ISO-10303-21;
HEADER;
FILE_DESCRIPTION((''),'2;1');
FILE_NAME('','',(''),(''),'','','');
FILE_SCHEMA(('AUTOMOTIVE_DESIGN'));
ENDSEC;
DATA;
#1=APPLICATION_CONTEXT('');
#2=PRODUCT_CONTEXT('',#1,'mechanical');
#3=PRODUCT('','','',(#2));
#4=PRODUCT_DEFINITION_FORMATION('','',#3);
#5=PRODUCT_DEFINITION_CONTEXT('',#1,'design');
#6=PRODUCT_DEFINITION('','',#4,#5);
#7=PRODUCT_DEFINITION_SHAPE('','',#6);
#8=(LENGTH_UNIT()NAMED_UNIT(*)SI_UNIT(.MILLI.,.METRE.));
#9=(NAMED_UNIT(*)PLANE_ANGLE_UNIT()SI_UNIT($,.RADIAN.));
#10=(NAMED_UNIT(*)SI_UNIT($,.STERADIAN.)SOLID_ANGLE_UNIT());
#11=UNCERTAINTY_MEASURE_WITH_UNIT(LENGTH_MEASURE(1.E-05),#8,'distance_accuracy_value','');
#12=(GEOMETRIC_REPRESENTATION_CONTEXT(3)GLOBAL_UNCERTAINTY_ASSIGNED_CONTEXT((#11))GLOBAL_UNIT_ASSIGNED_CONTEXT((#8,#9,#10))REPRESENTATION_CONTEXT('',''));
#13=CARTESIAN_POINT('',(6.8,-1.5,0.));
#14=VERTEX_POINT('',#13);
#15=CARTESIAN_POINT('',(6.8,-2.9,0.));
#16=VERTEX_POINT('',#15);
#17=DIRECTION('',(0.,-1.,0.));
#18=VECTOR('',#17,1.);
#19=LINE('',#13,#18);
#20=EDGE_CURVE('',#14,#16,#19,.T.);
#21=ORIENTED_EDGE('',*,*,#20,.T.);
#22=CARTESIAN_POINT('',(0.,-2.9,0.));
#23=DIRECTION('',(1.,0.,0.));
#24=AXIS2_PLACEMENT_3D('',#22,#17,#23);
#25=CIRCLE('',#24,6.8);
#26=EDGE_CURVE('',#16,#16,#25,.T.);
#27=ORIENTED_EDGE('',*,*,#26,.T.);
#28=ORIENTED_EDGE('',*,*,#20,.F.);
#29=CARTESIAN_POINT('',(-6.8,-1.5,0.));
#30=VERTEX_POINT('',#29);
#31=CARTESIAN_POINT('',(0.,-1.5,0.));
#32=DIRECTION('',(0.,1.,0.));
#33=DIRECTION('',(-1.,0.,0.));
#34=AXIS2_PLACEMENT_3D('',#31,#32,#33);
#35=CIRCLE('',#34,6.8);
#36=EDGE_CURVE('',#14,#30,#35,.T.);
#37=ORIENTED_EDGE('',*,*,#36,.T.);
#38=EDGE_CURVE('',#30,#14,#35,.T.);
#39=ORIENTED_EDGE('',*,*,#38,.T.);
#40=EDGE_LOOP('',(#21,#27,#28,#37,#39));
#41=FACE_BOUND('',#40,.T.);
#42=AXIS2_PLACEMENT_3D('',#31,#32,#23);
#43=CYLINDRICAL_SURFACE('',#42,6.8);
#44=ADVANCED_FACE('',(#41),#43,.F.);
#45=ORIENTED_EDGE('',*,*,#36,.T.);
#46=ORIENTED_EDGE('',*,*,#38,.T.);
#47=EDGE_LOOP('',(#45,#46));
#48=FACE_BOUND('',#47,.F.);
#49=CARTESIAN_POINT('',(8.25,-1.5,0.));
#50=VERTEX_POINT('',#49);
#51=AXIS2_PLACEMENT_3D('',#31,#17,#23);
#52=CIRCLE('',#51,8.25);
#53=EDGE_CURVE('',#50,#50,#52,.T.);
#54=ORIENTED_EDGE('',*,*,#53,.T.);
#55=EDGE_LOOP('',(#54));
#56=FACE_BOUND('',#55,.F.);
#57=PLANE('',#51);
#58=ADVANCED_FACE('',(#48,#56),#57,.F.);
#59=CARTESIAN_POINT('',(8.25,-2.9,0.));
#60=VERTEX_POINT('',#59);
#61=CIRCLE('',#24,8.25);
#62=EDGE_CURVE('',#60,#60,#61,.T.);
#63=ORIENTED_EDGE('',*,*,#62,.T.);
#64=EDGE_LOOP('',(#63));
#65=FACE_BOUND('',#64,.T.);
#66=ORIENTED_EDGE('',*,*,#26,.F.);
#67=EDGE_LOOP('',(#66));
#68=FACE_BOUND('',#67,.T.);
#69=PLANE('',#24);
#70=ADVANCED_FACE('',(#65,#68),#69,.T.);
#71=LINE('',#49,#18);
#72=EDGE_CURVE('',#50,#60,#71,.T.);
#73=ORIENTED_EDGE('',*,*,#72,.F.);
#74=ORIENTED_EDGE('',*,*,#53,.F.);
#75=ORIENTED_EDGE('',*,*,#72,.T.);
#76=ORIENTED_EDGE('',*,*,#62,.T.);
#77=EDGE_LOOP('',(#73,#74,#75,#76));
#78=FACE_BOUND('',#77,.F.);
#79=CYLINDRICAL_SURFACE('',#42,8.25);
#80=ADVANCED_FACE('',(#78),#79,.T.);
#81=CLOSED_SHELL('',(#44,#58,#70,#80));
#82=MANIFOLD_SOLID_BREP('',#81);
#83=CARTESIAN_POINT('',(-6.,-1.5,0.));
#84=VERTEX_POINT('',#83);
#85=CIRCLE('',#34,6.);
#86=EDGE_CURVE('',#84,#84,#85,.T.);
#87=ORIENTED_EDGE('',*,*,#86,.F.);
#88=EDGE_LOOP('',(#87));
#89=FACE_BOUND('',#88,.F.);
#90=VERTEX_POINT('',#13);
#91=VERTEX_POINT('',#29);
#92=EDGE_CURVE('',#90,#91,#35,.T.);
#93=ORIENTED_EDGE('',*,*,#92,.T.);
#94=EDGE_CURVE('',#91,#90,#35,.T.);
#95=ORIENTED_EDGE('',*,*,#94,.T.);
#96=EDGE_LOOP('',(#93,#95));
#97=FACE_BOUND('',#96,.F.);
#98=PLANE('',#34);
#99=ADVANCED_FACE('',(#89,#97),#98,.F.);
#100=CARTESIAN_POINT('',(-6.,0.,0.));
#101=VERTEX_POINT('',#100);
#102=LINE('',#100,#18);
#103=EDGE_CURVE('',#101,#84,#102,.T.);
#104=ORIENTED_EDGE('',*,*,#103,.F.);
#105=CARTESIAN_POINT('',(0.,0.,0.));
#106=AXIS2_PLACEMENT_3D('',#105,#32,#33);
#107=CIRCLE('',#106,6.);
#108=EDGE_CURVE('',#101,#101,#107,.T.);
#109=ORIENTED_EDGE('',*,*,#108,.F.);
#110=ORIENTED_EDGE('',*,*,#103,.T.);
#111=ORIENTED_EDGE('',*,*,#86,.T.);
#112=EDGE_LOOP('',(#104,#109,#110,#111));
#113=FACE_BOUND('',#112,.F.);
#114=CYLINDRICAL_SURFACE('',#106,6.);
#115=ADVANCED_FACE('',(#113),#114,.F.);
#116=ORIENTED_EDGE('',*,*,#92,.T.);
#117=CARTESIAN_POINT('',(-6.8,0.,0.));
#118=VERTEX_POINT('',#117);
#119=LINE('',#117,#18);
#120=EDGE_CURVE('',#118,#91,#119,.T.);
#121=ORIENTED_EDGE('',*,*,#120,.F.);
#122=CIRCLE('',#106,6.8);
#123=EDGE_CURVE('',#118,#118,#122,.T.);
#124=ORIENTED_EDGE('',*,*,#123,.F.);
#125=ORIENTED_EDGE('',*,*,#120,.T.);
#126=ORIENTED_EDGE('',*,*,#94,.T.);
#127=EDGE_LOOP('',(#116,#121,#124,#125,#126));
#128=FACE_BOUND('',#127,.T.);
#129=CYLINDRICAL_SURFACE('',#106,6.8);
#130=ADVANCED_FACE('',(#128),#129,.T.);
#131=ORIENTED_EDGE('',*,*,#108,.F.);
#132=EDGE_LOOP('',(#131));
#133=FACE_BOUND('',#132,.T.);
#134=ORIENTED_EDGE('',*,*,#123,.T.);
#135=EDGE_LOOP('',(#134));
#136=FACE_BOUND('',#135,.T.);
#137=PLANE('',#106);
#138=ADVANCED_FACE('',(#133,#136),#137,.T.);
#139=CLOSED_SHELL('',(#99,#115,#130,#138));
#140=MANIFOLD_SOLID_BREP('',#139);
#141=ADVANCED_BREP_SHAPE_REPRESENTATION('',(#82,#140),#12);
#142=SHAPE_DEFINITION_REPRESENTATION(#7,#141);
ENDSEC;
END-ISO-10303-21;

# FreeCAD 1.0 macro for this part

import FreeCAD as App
import Part
import Sketcher
Q = App.Units.Quantity

doc = App.newDocument("Part")
body = doc.addObject("PartDesign::Body", "Body")
body.AllowCompound = True

# Sketch on XZ plane
sketch1 = body.newObject("Sketcher::SketchObject", "Sketch")
sketch1.AttachmentSupport = (doc.getObject("XZ_Plane"), [""])
sketch1.MapMode = "FlatFace"
sketch1.addGeometry(Part.Circle(App.Vector(0, 0, 0), App.Vector(0, 0, 1), 7), False)
sketch1.addGeometry(Part.Circle(App.Vector(0, 0, 0), App.Vector(0, 0, 1), 6), False)
sketch1.addConstraint(Sketcher.Constraint("Coincident", 0, 3, -1, 1))
sketch1.addConstraint(Sketcher.Constraint("Coincident", 1, 3, -1, 1))
sketch1.addConstraint(Sketcher.Constraint("Diameter", 1, Q("12 mm")))
sketch1.addConstraint(Sketcher.Constraint("Diameter", 0, Q("13.6 mm")))
pad1 = body.newObject("PartDesign::Pad", "Pad")
pad1.Profile = sketch1
pad1.Length = 1.5

# Sketch on XZ plane
sketch2 = body.newObject("Sketcher::SketchObject", "Sketch001")
sketch2.AttachmentSupport = (doc.getObject("XZ_Plane"), [""])
sketch2.MapMode = "FlatFace"
sketch2.AttachmentOffset = App.Placement(App.Vector(0, 0, 1.5), App.Rotation())
sketch2.addGeometry(Part.Circle(App.Vector(0, 0, 0), App.Vector(0, 0, 1), 8), False)
sketch2.addGeometry(Part.Circle(App.Vector(0, 0, 0), App.Vector(0, 0, 1), 7), False)
sketch2.addConstraint(Sketcher.Constraint("Coincident", 0, 3, -1, 1))
sketch2.addConstraint(Sketcher.Constraint("Coincident", 1, 3, -1, 1))
sketch2.addConstraint(Sketcher.Constraint("Diameter", 0, Q("16.5 mm")))
sketch2.addConstraint(Sketcher.Constraint("Diameter", 1, Q("13.6 mm")))
pad2 = body.newObject("PartDesign::Pad", "Pad001")
pad2.Profile = sketch2
pad2.Length = 1.4

doc.recompute()
